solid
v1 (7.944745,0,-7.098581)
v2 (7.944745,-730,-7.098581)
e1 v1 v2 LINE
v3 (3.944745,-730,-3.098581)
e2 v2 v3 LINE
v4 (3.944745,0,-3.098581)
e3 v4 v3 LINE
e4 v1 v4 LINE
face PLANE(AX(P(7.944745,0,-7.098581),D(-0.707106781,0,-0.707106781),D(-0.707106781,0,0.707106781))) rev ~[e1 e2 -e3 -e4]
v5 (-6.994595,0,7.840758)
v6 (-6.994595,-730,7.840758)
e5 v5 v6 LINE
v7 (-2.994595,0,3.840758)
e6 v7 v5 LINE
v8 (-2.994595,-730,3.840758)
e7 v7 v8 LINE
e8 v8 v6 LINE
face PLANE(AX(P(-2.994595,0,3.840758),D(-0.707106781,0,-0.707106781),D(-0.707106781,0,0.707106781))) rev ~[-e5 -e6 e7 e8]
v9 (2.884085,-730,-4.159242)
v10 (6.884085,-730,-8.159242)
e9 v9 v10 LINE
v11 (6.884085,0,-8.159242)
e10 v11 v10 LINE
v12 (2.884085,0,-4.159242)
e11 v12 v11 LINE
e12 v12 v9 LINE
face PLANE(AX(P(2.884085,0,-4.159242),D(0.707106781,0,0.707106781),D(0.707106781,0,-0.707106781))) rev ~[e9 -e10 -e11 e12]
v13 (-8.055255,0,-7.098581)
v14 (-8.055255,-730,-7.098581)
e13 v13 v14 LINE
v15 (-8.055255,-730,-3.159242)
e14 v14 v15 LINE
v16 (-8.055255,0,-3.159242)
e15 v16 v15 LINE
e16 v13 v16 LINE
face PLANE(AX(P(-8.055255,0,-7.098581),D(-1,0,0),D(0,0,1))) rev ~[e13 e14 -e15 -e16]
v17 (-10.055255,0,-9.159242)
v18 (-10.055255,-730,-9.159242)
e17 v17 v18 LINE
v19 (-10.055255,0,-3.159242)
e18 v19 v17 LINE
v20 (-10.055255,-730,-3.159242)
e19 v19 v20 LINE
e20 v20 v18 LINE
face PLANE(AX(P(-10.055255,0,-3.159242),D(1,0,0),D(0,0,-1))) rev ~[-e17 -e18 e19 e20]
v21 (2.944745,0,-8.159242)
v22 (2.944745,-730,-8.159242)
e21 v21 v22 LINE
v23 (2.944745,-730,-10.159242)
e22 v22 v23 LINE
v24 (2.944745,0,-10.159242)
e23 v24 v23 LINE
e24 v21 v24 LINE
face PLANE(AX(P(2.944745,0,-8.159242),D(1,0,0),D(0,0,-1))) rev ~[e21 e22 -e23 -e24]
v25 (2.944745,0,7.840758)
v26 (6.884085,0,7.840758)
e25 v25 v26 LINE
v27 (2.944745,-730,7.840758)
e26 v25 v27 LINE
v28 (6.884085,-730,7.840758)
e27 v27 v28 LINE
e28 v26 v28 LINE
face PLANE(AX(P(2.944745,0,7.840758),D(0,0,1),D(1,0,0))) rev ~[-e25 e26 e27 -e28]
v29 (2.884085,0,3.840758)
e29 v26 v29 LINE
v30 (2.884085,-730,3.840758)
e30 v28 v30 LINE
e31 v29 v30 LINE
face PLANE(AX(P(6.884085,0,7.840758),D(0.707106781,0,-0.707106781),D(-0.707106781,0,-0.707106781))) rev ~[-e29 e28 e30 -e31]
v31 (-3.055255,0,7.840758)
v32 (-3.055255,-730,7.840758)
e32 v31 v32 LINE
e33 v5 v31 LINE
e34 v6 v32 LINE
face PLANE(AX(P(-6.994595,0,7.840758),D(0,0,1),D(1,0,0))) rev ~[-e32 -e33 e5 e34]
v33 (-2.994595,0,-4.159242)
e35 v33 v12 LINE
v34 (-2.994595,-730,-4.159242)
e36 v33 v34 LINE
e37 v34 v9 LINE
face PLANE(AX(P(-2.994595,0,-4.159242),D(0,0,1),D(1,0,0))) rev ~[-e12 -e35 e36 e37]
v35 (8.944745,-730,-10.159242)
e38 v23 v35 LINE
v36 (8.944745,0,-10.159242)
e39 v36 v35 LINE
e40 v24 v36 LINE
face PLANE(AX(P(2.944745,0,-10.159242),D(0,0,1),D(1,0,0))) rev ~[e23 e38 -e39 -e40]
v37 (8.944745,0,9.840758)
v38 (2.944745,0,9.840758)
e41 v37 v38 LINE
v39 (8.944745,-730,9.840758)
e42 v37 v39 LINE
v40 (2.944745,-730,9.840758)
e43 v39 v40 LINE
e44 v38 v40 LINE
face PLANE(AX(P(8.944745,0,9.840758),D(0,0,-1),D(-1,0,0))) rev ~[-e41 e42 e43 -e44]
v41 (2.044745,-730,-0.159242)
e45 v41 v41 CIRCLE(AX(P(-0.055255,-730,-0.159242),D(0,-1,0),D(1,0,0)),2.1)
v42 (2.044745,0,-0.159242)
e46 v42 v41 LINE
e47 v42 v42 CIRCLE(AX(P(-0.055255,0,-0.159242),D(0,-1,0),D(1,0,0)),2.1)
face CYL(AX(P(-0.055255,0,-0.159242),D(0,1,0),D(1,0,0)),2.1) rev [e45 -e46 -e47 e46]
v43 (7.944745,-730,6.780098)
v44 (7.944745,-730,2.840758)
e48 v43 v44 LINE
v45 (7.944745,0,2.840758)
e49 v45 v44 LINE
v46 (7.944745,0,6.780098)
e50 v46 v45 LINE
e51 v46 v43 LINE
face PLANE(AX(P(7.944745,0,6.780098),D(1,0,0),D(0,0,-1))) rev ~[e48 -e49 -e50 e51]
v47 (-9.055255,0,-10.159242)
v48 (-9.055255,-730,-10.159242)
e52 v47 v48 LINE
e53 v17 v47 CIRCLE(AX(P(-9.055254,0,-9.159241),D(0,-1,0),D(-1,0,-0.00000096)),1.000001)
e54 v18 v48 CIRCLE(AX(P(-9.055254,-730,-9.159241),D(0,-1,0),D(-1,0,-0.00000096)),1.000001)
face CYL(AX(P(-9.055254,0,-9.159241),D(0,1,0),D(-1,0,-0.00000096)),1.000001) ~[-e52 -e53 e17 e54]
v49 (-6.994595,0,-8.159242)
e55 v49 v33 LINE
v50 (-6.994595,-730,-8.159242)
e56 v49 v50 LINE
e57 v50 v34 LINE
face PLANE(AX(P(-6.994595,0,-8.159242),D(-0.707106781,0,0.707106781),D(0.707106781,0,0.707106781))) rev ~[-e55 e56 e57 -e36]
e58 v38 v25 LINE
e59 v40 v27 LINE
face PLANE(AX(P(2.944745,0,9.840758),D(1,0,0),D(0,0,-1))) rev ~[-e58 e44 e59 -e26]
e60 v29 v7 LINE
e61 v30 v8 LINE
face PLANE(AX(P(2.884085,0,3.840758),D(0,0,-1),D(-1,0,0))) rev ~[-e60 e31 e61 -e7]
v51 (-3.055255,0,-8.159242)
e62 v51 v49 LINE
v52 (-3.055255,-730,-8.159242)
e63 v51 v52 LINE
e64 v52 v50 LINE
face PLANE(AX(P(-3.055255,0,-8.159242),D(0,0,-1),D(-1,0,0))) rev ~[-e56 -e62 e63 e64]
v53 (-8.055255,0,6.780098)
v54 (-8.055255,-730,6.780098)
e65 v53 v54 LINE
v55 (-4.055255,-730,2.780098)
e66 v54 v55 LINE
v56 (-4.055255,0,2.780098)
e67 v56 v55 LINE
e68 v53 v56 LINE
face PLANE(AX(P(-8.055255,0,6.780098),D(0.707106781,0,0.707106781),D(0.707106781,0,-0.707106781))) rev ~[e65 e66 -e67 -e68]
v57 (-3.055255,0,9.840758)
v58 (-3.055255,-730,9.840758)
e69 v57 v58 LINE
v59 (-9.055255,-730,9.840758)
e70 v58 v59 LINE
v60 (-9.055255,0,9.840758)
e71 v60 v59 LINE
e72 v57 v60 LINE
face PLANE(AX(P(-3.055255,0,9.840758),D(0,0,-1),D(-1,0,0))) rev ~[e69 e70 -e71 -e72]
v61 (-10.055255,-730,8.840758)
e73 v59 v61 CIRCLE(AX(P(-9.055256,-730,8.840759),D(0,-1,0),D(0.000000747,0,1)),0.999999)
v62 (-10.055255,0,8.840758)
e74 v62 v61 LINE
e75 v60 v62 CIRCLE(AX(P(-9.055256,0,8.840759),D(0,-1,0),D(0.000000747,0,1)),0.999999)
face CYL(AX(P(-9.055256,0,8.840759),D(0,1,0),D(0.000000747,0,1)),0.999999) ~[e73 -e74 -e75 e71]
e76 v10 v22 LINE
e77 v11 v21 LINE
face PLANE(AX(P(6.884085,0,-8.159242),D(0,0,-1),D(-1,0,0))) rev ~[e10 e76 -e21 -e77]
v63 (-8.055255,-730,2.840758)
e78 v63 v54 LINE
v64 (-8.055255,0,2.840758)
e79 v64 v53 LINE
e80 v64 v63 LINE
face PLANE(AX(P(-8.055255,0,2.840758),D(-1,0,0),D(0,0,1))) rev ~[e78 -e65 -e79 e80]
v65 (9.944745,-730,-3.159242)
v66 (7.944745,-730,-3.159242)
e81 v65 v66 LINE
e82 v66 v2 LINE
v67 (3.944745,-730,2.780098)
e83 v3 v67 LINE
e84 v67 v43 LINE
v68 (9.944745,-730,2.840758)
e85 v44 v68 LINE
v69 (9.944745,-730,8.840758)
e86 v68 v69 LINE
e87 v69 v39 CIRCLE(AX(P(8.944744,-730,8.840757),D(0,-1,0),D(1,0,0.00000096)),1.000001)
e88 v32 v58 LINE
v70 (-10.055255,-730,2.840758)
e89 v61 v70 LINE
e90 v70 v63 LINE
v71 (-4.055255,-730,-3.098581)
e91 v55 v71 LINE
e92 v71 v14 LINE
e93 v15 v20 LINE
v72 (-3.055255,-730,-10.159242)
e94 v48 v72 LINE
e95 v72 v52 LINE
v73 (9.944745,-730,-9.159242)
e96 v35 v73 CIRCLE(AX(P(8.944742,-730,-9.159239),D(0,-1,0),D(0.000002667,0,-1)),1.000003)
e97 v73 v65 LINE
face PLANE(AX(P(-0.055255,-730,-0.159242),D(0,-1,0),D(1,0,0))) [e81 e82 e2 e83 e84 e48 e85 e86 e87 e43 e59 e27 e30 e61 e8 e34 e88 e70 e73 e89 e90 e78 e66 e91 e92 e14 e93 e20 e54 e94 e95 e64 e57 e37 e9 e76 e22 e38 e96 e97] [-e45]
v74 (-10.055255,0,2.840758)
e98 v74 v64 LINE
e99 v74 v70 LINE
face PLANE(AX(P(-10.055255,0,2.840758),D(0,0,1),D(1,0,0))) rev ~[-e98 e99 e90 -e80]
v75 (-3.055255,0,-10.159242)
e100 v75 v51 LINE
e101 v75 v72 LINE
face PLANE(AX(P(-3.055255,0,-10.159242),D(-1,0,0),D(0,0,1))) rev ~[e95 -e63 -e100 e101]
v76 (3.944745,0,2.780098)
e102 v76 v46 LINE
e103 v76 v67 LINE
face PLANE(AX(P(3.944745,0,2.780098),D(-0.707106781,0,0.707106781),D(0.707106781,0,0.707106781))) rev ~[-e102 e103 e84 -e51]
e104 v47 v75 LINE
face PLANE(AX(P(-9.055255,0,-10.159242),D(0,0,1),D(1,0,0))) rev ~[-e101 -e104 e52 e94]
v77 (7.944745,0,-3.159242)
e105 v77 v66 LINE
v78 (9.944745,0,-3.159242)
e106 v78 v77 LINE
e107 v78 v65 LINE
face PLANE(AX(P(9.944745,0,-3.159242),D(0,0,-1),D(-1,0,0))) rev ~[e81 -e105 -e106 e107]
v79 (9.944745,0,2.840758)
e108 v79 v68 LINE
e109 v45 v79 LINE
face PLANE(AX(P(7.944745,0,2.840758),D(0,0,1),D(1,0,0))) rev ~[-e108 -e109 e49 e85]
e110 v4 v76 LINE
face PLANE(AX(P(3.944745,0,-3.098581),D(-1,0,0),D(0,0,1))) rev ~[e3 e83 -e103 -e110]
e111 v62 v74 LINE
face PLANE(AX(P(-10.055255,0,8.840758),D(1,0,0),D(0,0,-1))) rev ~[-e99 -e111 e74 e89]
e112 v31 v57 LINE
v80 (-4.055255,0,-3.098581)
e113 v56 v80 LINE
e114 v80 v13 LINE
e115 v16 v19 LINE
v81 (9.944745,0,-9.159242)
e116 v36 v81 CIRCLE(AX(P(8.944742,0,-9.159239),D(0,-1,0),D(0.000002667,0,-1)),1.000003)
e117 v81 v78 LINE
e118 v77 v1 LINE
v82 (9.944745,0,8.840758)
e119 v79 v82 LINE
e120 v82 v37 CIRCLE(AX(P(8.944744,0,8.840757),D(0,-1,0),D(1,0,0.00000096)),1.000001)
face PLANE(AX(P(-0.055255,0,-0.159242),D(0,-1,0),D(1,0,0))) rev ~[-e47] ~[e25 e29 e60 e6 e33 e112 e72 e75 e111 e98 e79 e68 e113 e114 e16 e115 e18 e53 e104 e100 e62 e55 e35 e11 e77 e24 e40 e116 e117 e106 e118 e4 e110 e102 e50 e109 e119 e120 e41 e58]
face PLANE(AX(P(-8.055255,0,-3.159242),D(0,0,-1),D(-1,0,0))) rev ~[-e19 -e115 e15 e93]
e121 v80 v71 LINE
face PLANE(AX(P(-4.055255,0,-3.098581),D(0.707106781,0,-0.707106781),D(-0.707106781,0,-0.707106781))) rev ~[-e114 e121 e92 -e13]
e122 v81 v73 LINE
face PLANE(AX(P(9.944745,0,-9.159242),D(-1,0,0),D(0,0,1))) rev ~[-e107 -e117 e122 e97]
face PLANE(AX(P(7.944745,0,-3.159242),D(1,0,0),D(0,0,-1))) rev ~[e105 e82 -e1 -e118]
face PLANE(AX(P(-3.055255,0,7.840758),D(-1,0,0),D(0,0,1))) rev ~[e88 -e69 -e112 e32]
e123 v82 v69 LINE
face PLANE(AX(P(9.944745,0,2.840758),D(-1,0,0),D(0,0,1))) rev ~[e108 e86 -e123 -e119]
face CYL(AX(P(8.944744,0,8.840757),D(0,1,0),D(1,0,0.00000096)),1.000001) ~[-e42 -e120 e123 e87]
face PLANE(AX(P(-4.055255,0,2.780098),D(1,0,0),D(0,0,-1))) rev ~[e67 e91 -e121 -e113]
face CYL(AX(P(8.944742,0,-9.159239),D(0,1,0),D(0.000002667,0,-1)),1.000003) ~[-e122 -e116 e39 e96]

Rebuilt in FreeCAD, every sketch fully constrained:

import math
import FreeCAD as App
import Part
import Sketcher

doc = App.newDocument("Part")
params = doc.addObject("Spreadsheet::Sheet", "Params")
for row, (alias, value) in enumerate([
    ("sketch1_radius", "1.000001 mm"),
    ("sketch1_diameter", "4.2 mm"),
    ("sketch1_width", "6 mm"),
    ("sketch1_width2", "2 mm"),
    ("pad1_length", "730 mm"),
], start=1):
    params.set(f"A{row}", alias)
    params.set(f"B{row}", "=" + value)
    params.setAlias(f"B{row}", alias)

body = doc.addObject("PartDesign::Body", "Body")

# Sketch on XZ plane
sketch1 = doc.addObject("Sketcher::SketchObject", "Sketch")
body.addObject(sketch1)
sketch1.AttachmentSupport = (doc.XZ_Plane, [""])
sketch1.MapMode = "FlatFace"
sketch1.addGeometry([
    Part.ArcOfCircle(Part.Circle(App.Vector(8.9, 8.8, 0), App.Vector(0, 0, 1), 1), math.radians(0), math.radians(90)),  # 0
    Part.LineSegment(App.Vector(8.9, 9.8, 0), App.Vector(2.9, 9.8, 0)),  # 1
    Part.LineSegment(App.Vector(2.9, 9.8, 0), App.Vector(2.9, 7.8, 0)),  # 2
    Part.LineSegment(App.Vector(2.9, 7.8, 0), App.Vector(6.9, 7.8, 0)),  # 3
    Part.LineSegment(App.Vector(6.9, 7.8, 0), App.Vector(2.9, 3.8, 0)),  # 4
    Part.LineSegment(App.Vector(2.9, 3.8, 0), App.Vector(-3, 3.8, 0)),  # 5
    Part.LineSegment(App.Vector(-3, 3.8, 0), App.Vector(-7, 7.8, 0)),  # 6
    Part.LineSegment(App.Vector(-7, 7.8, 0), App.Vector(-3.1, 7.8, 0)),  # 7
    Part.LineSegment(App.Vector(-3.1, 7.8, 0), App.Vector(-3.1, 9.8, 0)),  # 8
    Part.LineSegment(App.Vector(-3.1, 9.8, 0), App.Vector(-9.1, 9.8, 0)),  # 9
    Part.ArcOfCircle(Part.Circle(App.Vector(-9.1, 8.8, 0), App.Vector(0, 0, 1), 1), math.radians(90), math.radians(180)),  # 10
    Part.LineSegment(App.Vector(-10.1, 8.8, 0), App.Vector(-10.1, 2.8, 0)),  # 11
    Part.LineSegment(App.Vector(-10.1, 2.8, 0), App.Vector(-8.1, 2.8, 0)),  # 12
    Part.LineSegment(App.Vector(-8.1, 2.8, 0), App.Vector(-8.1, 6.8, 0)),  # 13
    Part.LineSegment(App.Vector(-8.1, 6.8, 0), App.Vector(-4.1, 2.8, 0)),  # 14
    Part.LineSegment(App.Vector(-4.1, 2.8, 0), App.Vector(-4.1, -3.1, 0)),  # 15
    Part.LineSegment(App.Vector(-4.1, -3.1, 0), App.Vector(-8.1, -7.1, 0)),  # 16
    Part.LineSegment(App.Vector(-8.1, -7.1, 0), App.Vector(-8.1, -3.2, 0)),  # 17
    Part.LineSegment(App.Vector(-8.1, -3.2, 0), App.Vector(-10.1, -3.2, 0)),  # 18
    Part.LineSegment(App.Vector(-10.1, -3.2, 0), App.Vector(-10.1, -9.2, 0)),  # 19
    Part.ArcOfCircle(Part.Circle(App.Vector(-9.1, -9.2, 0), App.Vector(0, 0, 1), 1), math.radians(-180), math.radians(-90)),  # 20
    Part.LineSegment(App.Vector(-9.1, -10.2, 0), App.Vector(-3.1, -10.2, 0)),  # 21
    Part.LineSegment(App.Vector(-3.1, -10.2, 0), App.Vector(-3.1, -8.2, 0)),  # 22
    Part.LineSegment(App.Vector(-3.1, -8.2, 0), App.Vector(-7, -8.2, 0)),  # 23
    Part.LineSegment(App.Vector(-7, -8.2, 0), App.Vector(-3, -4.2, 0)),  # 24
    Part.LineSegment(App.Vector(-3, -4.2, 0), App.Vector(2.9, -4.2, 0)),  # 25
    Part.LineSegment(App.Vector(2.9, -4.2, 0), App.Vector(6.9, -8.2, 0)),  # 26
    Part.LineSegment(App.Vector(6.9, -8.2, 0), App.Vector(2.9, -8.2, 0)),  # 27
    Part.LineSegment(App.Vector(2.9, -8.2, 0), App.Vector(2.9, -10.2, 0)),  # 28
    Part.LineSegment(App.Vector(2.9, -10.2, 0), App.Vector(8.9, -10.2, 0)),  # 29
    Part.ArcOfCircle(Part.Circle(App.Vector(8.9, -9.2, 0), App.Vector(0, 0, 1), 1), math.radians(-90), math.radians(0)),  # 30
    Part.LineSegment(App.Vector(9.9, -9.2, 0), App.Vector(9.9, -3.2, 0)),  # 31
    Part.LineSegment(App.Vector(9.9, -3.2, 0), App.Vector(7.9, -3.2, 0)),  # 32
    Part.LineSegment(App.Vector(7.9, -3.2, 0), App.Vector(7.9, -7.1, 0)),  # 33
    Part.LineSegment(App.Vector(7.9, -7.1, 0), App.Vector(3.9, -3.1, 0)),  # 34
    Part.LineSegment(App.Vector(3.9, -3.1, 0), App.Vector(3.9, 2.8, 0)),  # 35
    Part.LineSegment(App.Vector(3.9, 2.8, 0), App.Vector(7.9, 6.8, 0)),  # 36
    Part.LineSegment(App.Vector(7.9, 6.8, 0), App.Vector(7.9, 2.8, 0)),  # 37
    Part.LineSegment(App.Vector(7.9, 2.8, 0), App.Vector(9.9, 2.8, 0)),  # 38
    Part.LineSegment(App.Vector(9.9, 2.8, 0), App.Vector(9.9, 8.8, 0)),  # 39
    Part.Circle(App.Vector(-0.1, -0.2, 0), App.Vector(0, 0, 1), 2.1),  # 40
], False)
sketch1.addConstraint([
    Sketcher.Constraint("Tangent", 0, 2, 1, 1),
    Sketcher.Constraint("Coincident", 1, 2, 2, 1),
    Sketcher.Constraint("Coincident", 2, 2, 3, 1),
    Sketcher.Constraint("Coincident", 3, 2, 4, 1),
    Sketcher.Constraint("Coincident", 4, 2, 5, 1),
    Sketcher.Constraint("Coincident", 5, 2, 6, 1),
    Sketcher.Constraint("Coincident", 6, 2, 7, 1),
    Sketcher.Constraint("Coincident", 7, 2, 8, 1),
    Sketcher.Constraint("Coincident", 8, 2, 9, 1),
    Sketcher.Constraint("Tangent", 9, 2, 10, 1),
    Sketcher.Constraint("Tangent", 10, 2, 11, 1),
    Sketcher.Constraint("Coincident", 11, 2, 12, 1),
    Sketcher.Constraint("Coincident", 12, 2, 13, 1),
    Sketcher.Constraint("Coincident", 13, 2, 14, 1),
    Sketcher.Constraint("Coincident", 14, 2, 15, 1),
    Sketcher.Constraint("Coincident", 15, 2, 16, 1),
    Sketcher.Constraint("Coincident", 16, 2, 17, 1),
    Sketcher.Constraint("Coincident", 17, 2, 18, 1),
    Sketcher.Constraint("Coincident", 18, 2, 19, 1),
    Sketcher.Constraint("Tangent", 19, 2, 20, 1),
    Sketcher.Constraint("Tangent", 20, 2, 21, 1),
    Sketcher.Constraint("Coincident", 21, 2, 22, 1),
    Sketcher.Constraint("Coincident", 22, 2, 23, 1),
    Sketcher.Constraint("Coincident", 23, 2, 24, 1),
    Sketcher.Constraint("Coincident", 24, 2, 25, 1),
    Sketcher.Constraint("Coincident", 25, 2, 26, 1),
    Sketcher.Constraint("Coincident", 26, 2, 27, 1),
    Sketcher.Constraint("Coincident", 27, 2, 28, 1),
    Sketcher.Constraint("Coincident", 28, 2, 29, 1),
    Sketcher.Constraint("Coincident", 29, 2, 30, 1),
    Sketcher.Constraint("Coincident", 30, 2, 31, 1),
    Sketcher.Constraint("Coincident", 31, 2, 32, 1),
    Sketcher.Constraint("Coincident", 32, 2, 33, 1),
    Sketcher.Constraint("Coincident", 33, 2, 34, 1),
    Sketcher.Constraint("Coincident", 34, 2, 35, 1),
    Sketcher.Constraint("Coincident", 35, 2, 36, 1),
    Sketcher.Constraint("Coincident", 36, 2, 37, 1),
    Sketcher.Constraint("Coincident", 37, 2, 38, 1),
    Sketcher.Constraint("Coincident", 38, 2, 39, 1),
    Sketcher.Constraint("Tangent", 39, 2, 0, 1),
    Sketcher.Constraint("Horizontal", 1),
    Sketcher.Constraint("Vertical", 2),
    Sketcher.Constraint("Horizontal", 3),
    Sketcher.Constraint("Horizontal", 5),
    Sketcher.Constraint("Horizontal", 7),
    Sketcher.Constraint("Vertical", 8),
    Sketcher.Constraint("Horizontal", 9),
    Sketcher.Constraint("Vertical", 11),
    Sketcher.Constraint("Horizontal", 12),
    Sketcher.Constraint("Vertical", 13),
    Sketcher.Constraint("Vertical", 15),
    Sketcher.Constraint("Vertical", 17),
    Sketcher.Constraint("Horizontal", 18),
    Sketcher.Constraint("Vertical", 19),
    Sketcher.Constraint("Horizontal", 21),
    Sketcher.Constraint("Vertical", 22),
    Sketcher.Constraint("Horizontal", 23),
    Sketcher.Constraint("Horizontal", 25),
    Sketcher.Constraint("Horizontal", 27),
    Sketcher.Constraint("Vertical", 28),
    Sketcher.Constraint("Horizontal", 29),
    Sketcher.Constraint("Vertical", 31),
    Sketcher.Constraint("Horizontal", 32),
    Sketcher.Constraint("Vertical", 33),
    Sketcher.Constraint("Vertical", 35),
    Sketcher.Constraint("Vertical", 37),
    Sketcher.Constraint("Horizontal", 38),
    Sketcher.Constraint("Vertical", 39),
    Sketcher.Constraint("Equal", 0, 10),
    Sketcher.Constraint("Equal", 10, 20),
    Sketcher.Constraint("Equal", 20, 30),
    Sketcher.Constraint("Perpendicular", 4, 6),
    Sketcher.Constraint("Parallel", 6, 14),
    Sketcher.Constraint("Perpendicular", 14, 16),
    Sketcher.Constraint("Parallel", 16, 24),
    Sketcher.Constraint("Perpendicular", 24, 26),
    Sketcher.Constraint("Parallel", 26, 34),
    Sketcher.Constraint("Perpendicular", 34, 36),
    Sketcher.Constraint("Horizontal", 0, 3, 10, 3),
    Sketcher.Constraint("Horizontal", 20, 3, 30, 3),
    Sketcher.Constraint("Horizontal", 3, 2, 6, 2),
    Sketcher.Constraint("Horizontal", 23, 2, 26, 2),
    Sketcher.Constraint("Horizontal", 19, 2, 30, 2),
    Sketcher.Constraint("Horizontal", 18, 2, 31, 2),
    Sketcher.Constraint("Horizontal", 16, 2, 33, 2),
    Sketcher.Constraint("Horizontal", 15, 2, 34, 2),
    Sketcher.Constraint("Horizontal", 14, 2, 35, 2),
    Sketcher.Constraint("Horizontal", 13, 2, 36, 2),
    Sketcher.Constraint("Horizontal", 12, 2, 37, 2),
    Sketcher.Constraint("Vertical", 10, 3, 20, 3),
    Sketcher.Constraint("Vertical", 0, 3, 30, 3),
    Sketcher.Constraint("Vertical", 13, 2, 16, 2),
    Sketcher.Constraint("Vertical", 8, 2, 21, 2),
    Sketcher.Constraint("Vertical", 6, 2, 23, 2),
    Sketcher.Constraint("Vertical", 5, 2, 24, 2),
    Sketcher.Constraint("Vertical", 4, 2, 25, 2),
    Sketcher.Constraint("Vertical", 3, 2, 26, 2),
    Sketcher.Constraint("Vertical", 2, 2, 27, 2),
    Sketcher.Constraint("Vertical", 0, 2, 29, 2),
    Sketcher.Constraint("Equal", 3, 7),
    Sketcher.Constraint("Equal", 1, 9),
    Sketcher.Constraint("Equal", 18, 32),
    Sketcher.Constraint("Equal", 38, 2),
    Sketcher.Constraint("Equal", 29, 11),
    Sketcher.Constraint("Equal", 27, 13),
    Sketcher.Constraint("Equal", 25, 15),
    Sketcher.Constraint("Equal", 13, 17),
    Sketcher.Constraint("Equal", 11, 19),
    Sketcher.Constraint("Equal", 8, 22),
    Sketcher.Constraint("Equal", 6, 14),
    Sketcher.Constraint("Radius", 0, 1.000001),
    Sketcher.Constraint("Diameter", 40, 4.2),
    Sketcher.Constraint("DistanceX", 1, 2, 1, 1, 6.0),
    Sketcher.Constraint("DistanceX", 12, 1, 12, 2, 2.0),
    Sketcher.Constraint("DistanceX", 10, 3, 0, 3, 18.0),
    Sketcher.Constraint("DistanceX", 20, 3, 40, 3, 8.999999),
    Sketcher.Constraint("DistanceY", 20, 3, 40, 3, 8.999999),
    Sketcher.Constraint("DistanceY", 4, 2, 2, 2, 4.0),
    Sketcher.Constraint("DistanceX", 3, 1, 3, 2, 3.93934),
    Sketcher.Constraint("DistanceY", -1, 1, 14, 2, 2.780098),
    Sketcher.Constraint("DistanceX", -1, 1, 0, 3, 8.944744),
])
sketch1.setExpression("Constraints[110]", "Params.sketch1_radius")
sketch1.setExpression("Constraints[111]", "Params.sketch1_diameter")
sketch1.setExpression("Constraints[112]", "Params.sketch1_width")
sketch1.setExpression("Constraints[113]", "Params.sketch1_width2")
pad1 = doc.addObject("PartDesign::Pad", "Pad")
body.addObject(pad1)
pad1.Profile = sketch1
pad1.setExpression("Length", "Params.pad1_length")

doc.recompute()
